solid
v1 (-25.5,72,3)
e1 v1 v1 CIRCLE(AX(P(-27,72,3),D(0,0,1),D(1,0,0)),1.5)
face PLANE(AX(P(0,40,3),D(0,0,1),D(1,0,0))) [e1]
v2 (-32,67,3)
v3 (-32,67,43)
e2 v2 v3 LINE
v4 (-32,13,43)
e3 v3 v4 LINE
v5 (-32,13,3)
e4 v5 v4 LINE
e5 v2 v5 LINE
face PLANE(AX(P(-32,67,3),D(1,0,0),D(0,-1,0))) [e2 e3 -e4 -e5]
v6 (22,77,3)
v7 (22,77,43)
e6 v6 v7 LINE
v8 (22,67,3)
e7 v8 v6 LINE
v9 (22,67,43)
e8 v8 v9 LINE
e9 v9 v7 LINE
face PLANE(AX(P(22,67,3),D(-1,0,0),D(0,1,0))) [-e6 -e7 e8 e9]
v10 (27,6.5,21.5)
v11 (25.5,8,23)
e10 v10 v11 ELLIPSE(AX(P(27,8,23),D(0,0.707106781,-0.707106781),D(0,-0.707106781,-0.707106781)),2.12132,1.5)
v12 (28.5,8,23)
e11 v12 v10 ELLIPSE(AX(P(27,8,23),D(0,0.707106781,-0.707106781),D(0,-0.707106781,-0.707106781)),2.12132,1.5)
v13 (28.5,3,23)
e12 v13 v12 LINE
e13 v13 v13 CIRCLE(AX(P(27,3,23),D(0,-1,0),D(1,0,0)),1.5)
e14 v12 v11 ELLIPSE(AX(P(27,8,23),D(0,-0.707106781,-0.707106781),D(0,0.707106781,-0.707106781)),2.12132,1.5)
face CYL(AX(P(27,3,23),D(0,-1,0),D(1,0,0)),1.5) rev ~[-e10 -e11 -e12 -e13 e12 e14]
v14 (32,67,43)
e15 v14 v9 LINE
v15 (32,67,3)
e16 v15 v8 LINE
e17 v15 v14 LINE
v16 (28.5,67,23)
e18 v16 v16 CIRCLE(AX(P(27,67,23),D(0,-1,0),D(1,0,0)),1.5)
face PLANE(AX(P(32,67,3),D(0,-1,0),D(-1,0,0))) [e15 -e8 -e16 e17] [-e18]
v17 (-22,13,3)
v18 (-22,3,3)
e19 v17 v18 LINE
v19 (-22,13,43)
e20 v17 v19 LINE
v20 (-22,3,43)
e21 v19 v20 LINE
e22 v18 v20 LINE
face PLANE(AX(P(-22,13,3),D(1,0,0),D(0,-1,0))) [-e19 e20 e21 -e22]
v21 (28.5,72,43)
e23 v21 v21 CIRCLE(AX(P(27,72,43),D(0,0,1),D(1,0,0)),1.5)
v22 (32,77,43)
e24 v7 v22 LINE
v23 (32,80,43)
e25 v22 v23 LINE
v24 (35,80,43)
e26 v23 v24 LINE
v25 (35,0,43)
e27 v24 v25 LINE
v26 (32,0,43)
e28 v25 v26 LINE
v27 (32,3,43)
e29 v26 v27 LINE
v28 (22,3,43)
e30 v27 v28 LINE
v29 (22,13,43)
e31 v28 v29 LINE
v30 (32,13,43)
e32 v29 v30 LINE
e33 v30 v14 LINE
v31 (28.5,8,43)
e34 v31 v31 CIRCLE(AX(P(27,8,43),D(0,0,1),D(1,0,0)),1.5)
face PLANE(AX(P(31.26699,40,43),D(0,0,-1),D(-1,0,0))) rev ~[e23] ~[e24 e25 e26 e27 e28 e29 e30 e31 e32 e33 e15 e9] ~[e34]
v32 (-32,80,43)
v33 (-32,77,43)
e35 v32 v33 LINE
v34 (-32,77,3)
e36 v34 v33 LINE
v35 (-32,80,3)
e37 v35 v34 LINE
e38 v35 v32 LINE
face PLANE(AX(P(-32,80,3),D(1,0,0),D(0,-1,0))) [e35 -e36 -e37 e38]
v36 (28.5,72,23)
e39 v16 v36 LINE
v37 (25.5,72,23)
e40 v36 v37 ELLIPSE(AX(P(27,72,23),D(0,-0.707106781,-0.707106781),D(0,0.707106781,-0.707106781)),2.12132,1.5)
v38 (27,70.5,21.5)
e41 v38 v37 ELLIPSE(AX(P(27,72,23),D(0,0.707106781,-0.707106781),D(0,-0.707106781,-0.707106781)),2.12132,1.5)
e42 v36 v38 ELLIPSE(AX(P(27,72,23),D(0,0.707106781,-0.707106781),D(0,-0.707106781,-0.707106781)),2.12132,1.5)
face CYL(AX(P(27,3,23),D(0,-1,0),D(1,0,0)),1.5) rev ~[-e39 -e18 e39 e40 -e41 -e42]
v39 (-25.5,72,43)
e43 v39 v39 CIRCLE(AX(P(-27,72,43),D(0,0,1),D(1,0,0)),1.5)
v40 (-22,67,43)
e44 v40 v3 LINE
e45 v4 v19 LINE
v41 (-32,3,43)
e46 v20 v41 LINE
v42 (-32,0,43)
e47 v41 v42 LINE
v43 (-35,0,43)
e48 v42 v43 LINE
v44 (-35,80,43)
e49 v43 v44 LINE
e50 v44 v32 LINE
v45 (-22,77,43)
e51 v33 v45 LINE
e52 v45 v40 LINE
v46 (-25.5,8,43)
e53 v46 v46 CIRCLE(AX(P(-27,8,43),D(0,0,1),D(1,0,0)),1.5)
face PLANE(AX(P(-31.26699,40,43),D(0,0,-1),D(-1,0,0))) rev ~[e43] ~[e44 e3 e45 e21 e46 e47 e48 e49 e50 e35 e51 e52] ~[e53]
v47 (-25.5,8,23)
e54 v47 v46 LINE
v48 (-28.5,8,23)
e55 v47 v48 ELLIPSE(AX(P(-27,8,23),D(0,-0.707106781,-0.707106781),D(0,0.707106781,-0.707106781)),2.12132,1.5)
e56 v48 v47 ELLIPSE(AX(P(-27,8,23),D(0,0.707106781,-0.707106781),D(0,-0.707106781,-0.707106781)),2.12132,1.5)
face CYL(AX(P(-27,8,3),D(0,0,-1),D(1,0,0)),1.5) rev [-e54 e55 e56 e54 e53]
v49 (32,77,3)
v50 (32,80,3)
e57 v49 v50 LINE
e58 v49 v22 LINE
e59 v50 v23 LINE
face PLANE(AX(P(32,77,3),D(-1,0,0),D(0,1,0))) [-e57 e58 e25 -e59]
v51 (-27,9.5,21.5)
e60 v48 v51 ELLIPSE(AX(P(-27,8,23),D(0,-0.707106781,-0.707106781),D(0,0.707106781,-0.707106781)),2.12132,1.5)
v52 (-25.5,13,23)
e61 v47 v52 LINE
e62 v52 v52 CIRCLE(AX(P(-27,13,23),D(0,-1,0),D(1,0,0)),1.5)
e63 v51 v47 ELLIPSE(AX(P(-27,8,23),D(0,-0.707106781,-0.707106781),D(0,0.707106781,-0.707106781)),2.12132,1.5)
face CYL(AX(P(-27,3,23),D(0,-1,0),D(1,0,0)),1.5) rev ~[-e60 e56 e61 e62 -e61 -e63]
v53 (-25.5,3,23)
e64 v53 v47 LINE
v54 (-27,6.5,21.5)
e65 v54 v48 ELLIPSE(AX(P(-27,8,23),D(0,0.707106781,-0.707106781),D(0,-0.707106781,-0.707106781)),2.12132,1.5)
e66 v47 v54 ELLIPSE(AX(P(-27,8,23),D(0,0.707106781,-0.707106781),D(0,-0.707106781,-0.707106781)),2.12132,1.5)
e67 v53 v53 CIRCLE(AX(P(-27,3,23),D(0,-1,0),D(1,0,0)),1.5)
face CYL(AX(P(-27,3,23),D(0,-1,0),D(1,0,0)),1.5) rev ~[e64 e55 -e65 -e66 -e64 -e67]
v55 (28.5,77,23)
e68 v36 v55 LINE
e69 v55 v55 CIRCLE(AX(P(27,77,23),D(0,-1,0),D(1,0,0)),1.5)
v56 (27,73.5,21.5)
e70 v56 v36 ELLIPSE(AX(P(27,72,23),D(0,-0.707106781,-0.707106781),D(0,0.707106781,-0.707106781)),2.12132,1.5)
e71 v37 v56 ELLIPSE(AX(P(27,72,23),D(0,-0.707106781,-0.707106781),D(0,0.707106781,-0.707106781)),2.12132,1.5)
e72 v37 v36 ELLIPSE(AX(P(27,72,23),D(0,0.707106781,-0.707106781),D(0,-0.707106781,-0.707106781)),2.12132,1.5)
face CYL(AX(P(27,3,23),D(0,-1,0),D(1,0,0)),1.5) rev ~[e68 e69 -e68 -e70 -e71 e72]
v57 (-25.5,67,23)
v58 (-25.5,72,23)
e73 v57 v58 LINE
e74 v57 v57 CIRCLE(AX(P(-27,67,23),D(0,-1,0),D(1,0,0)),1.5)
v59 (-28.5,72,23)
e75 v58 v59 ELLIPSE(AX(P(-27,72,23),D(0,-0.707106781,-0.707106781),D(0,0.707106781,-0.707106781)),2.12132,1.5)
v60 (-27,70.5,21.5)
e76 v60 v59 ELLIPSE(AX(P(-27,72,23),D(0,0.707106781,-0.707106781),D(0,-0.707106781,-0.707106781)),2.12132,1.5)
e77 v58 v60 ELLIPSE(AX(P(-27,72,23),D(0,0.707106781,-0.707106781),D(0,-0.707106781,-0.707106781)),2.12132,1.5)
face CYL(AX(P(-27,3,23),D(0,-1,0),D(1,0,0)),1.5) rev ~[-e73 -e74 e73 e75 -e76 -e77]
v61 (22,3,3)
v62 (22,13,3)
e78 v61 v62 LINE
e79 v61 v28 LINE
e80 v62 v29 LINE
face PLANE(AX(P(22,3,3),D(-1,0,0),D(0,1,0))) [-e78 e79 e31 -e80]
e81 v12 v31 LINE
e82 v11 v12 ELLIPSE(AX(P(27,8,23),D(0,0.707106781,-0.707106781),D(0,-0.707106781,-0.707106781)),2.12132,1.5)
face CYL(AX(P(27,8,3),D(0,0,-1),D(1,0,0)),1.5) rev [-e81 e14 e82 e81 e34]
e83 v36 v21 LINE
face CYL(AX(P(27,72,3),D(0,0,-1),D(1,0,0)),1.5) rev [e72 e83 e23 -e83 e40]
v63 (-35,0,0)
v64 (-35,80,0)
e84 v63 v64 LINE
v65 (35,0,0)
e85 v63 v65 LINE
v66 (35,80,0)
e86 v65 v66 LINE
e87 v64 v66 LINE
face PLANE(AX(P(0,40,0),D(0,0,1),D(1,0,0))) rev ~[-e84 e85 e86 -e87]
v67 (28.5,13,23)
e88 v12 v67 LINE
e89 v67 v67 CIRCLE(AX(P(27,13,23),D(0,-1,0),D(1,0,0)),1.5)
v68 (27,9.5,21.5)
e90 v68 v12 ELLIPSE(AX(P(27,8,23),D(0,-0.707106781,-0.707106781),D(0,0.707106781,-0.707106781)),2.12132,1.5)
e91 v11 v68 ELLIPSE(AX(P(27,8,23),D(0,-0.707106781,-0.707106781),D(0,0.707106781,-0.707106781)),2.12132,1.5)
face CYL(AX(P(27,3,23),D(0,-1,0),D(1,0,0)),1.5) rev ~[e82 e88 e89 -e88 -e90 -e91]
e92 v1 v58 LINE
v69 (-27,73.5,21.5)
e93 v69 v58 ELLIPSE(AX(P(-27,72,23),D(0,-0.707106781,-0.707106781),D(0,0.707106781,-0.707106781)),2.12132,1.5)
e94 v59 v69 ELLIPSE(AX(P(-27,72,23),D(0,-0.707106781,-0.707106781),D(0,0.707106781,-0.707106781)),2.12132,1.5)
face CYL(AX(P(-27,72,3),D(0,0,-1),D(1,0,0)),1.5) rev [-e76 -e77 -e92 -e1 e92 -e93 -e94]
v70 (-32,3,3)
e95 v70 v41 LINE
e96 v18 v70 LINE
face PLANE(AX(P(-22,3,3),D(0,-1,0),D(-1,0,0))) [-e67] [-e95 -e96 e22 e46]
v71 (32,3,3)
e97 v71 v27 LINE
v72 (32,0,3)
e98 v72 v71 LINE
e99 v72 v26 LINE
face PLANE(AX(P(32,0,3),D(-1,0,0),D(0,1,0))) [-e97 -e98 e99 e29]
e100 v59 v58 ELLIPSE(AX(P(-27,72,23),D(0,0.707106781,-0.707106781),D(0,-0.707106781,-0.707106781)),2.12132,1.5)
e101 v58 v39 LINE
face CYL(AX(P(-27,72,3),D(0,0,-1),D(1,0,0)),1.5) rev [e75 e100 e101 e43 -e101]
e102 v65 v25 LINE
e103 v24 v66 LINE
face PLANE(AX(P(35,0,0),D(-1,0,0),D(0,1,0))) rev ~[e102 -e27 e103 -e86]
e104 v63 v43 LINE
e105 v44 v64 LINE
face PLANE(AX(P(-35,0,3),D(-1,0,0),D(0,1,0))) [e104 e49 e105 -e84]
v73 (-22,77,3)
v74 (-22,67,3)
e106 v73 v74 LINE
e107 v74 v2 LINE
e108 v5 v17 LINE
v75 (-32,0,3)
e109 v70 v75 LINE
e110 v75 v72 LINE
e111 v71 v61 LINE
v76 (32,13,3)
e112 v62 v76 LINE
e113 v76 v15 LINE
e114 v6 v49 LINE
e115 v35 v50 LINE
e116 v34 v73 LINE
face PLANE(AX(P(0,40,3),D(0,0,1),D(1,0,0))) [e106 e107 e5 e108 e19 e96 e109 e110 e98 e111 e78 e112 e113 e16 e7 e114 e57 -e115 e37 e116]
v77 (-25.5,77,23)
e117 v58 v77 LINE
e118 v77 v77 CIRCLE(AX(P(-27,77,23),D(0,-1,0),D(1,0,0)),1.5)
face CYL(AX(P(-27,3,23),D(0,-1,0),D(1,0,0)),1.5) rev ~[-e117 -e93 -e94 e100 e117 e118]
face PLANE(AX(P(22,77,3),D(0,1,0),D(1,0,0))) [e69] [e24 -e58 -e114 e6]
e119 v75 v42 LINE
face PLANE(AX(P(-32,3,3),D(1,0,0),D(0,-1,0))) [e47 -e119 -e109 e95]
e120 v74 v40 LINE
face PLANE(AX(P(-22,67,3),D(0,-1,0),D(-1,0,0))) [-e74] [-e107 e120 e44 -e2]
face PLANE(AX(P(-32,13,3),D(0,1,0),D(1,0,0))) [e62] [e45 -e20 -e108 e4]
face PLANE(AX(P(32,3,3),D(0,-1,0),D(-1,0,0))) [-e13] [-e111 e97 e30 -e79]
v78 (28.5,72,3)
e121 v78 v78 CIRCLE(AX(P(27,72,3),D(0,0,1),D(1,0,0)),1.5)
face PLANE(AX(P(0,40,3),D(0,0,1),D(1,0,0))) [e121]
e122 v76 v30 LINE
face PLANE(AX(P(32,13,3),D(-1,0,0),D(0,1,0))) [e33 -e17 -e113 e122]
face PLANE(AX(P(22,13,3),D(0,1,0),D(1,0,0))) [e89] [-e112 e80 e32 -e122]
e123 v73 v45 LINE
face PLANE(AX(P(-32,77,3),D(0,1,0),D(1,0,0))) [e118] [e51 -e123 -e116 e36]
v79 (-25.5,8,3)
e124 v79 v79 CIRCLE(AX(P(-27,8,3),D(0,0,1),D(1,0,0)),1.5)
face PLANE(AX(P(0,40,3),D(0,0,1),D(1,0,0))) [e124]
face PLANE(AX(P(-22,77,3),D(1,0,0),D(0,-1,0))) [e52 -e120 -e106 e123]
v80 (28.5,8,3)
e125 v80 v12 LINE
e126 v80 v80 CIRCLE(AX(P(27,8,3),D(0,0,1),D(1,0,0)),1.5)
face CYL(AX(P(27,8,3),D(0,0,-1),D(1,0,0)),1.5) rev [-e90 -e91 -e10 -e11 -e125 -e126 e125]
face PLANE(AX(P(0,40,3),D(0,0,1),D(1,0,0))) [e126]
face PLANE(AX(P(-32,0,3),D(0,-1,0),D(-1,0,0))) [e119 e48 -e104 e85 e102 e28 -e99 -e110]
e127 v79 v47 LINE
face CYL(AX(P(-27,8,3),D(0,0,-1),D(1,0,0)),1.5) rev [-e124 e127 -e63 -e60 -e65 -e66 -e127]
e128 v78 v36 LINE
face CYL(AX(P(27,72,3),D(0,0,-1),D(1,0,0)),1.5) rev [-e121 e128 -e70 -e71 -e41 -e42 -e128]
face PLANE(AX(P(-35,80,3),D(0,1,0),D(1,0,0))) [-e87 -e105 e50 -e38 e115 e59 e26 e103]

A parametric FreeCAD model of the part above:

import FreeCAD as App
import Part
import Sketcher

V = App.Vector
Q = App.Units.Quantity

doc = App.newDocument("Part")
params = doc.addObject("Spreadsheet::Sheet", "Params")
for row, (alias, value) in enumerate([
    ("sketch1_width", "70 mm"),
    ("sketch1_height", "80 mm"),
    ("pad1_length", "3 mm"),
    ("sketch2_diameter", "3 mm"),
    ("sketch2_width", "3 mm"),
    ("sketch2_width2", "10 mm"),
    ("sketch2_height", "80 mm"),
    ("pad2_length", "40 mm"),
    ("sketch3_diameter", "3 mm"),
], start=1):
    params.set(f"A{row}", alias)
    params.set(f"B{row}", "=" + value)
    params.setAlias(f"B{row}", alias)

body = doc.addObject("PartDesign::Body", "Body")

# Sketch on XY plane
sketch1 = body.newObject("Sketcher::SketchObject", "Sketch")
sketch1.AttachmentSupport = (doc.getObject("XY_Plane"), [""])
sketch1.MapMode = "FlatFace"
sketch1.addGeometry(Part.LineSegment(V(-35, 80, 0), V(-35, 0, 0)), False)
sketch1.addGeometry(Part.LineSegment(V(-35, 0, 0), V(35, 0, 0)), False)
sketch1.addGeometry(Part.LineSegment(V(35, 0, 0), V(35, 80, 0)), False)
sketch1.addGeometry(Part.LineSegment(V(35, 80, 0), V(-35, 80, 0)), False)
sketch1.addConstraint(Sketcher.Constraint("Coincident", 0, 2, 1, 1))
sketch1.addConstraint(Sketcher.Constraint("Coincident", 1, 2, 2, 1))
sketch1.addConstraint(Sketcher.Constraint("Coincident", 2, 2, 3, 1))
sketch1.addConstraint(Sketcher.Constraint("Coincident", 3, 2, 0, 1))
sketch1.addConstraint(Sketcher.Constraint("Vertical", 0))
sketch1.addConstraint(Sketcher.Constraint("Horizontal", 1))
sketch1.addConstraint(Sketcher.Constraint("Vertical", 2))
sketch1.addConstraint(Sketcher.Constraint("Horizontal", 3))
sketch1.addConstraint(Sketcher.Constraint("Symmetric", 0, 2, 1, 2, -1, 1))
sketch1.addConstraint(Sketcher.Constraint("DistanceX", 1, 1, 1, 2, Q("70 mm")))
sketch1.addConstraint(Sketcher.Constraint("DistanceY", 0, 2, 0, 1, Q("80 mm")))
sketch1.setExpression("Constraints[9]", "Params.sketch1_width")
sketch1.setExpression("Constraints[10]", "Params.sketch1_height")
pad1 = body.newObject("PartDesign::Pad", "Pad")
pad1.Profile = sketch1
pad1.setExpression("Length", "Params.pad1_length")

# Sketch on XY plane
sketch2 = body.newObject("Sketcher::SketchObject", "Sketch001")
sketch2.AttachmentSupport = (doc.getObject("XY_Plane"), [""])
sketch2.MapMode = "FlatFace"
sketch2.AttachmentOffset = App.Placement(V(0, 0, 3), App.Rotation())
sketch2.addGeometry(Part.LineSegment(V(-35, 80, 0), V(-35, 0, 0)), False)
sketch2.addGeometry(Part.LineSegment(V(-35, 0, 0), V(-32, 0, 0)), False)
sketch2.addGeometry(Part.LineSegment(V(-32, 0, 0), V(-32, 3, 0)), False)
sketch2.addGeometry(Part.LineSegment(V(-32, 3, 0), V(-22, 3, 0)), False)
sketch2.addGeometry(Part.LineSegment(V(-22, 3, 0), V(-22, 13, 0)), False)
sketch2.addGeometry(Part.LineSegment(V(-22, 13, 0), V(-32, 13, 0)), False)
sketch2.addGeometry(Part.LineSegment(V(-32, 13, 0), V(-32, 67, 0)), False)
sketch2.addGeometry(Part.LineSegment(V(-32, 67, 0), V(-22, 67, 0)), False)
sketch2.addGeometry(Part.LineSegment(V(-22, 67, 0), V(-22, 77, 0)), False)
sketch2.addGeometry(Part.LineSegment(V(-22, 77, 0), V(-32, 77, 0)), False)
sketch2.addGeometry(Part.LineSegment(V(-32, 77, 0), V(-32, 80, 0)), False)
sketch2.addGeometry(Part.LineSegment(V(-32, 80, 0), V(-35, 80, 0)), False)
sketch2.addGeometry(Part.Circle(V(-27, 8, 0), V(0, 0, 1), 1.5), False)
sketch2.addGeometry(Part.Circle(V(-27, 72, 0), V(0, 0, 1), 1.5), False)
sketch2.addGeometry(Part.LineSegment(V(35, 0, 0), V(35, 80, 0)), False)
sketch2.addGeometry(Part.LineSegment(V(35, 80, 0), V(32, 80, 0)), False)
sketch2.addGeometry(Part.LineSegment(V(32, 80, 0), V(32, 77, 0)), False)
sketch2.addGeometry(Part.LineSegment(V(32, 77, 0), V(22, 77, 0)), False)
sketch2.addGeometry(Part.LineSegment(V(22, 77, 0), V(22, 67, 0)), False)
sketch2.addGeometry(Part.LineSegment(V(22, 67, 0), V(32, 67, 0)), False)
sketch2.addGeometry(Part.LineSegment(V(32, 67, 0), V(32, 13, 0)), False)
sketch2.addGeometry(Part.LineSegment(V(32, 13, 0), V(22, 13, 0)), False)
sketch2.addGeometry(Part.LineSegment(V(22, 13, 0), V(22, 3, 0)), False)
sketch2.addGeometry(Part.LineSegment(V(22, 3, 0), V(32, 3, 0)), False)
sketch2.addGeometry(Part.LineSegment(V(32, 3, 0), V(32, 0, 0)), False)
sketch2.addGeometry(Part.LineSegment(V(32, 0, 0), V(35, 0, 0)), False)
sketch2.addGeometry(Part.Circle(V(27, 8, 0), V(0, 0, 1), 1.5), False)
sketch2.addGeometry(Part.Circle(V(27, 72, 0), V(0, 0, 1), 1.5), False)
sketch2.addConstraint(Sketcher.Constraint("Coincident", 0, 2, 1, 1))
sketch2.addConstraint(Sketcher.Constraint("Coincident", 1, 2, 2, 1))
sketch2.addConstraint(Sketcher.Constraint("Coincident", 2, 2, 3, 1))
sketch2.addConstraint(Sketcher.Constraint("Coincident", 3, 2, 4, 1))
sketch2.addConstraint(Sketcher.Constraint("Coincident", 4, 2, 5, 1))
sketch2.addConstraint(Sketcher.Constraint("Coincident", 5, 2, 6, 1))
sketch2.addConstraint(Sketcher.Constraint("Coincident", 6, 2, 7, 1))
sketch2.addConstraint(Sketcher.Constraint("Coincident", 7, 2, 8, 1))
sketch2.addConstraint(Sketcher.Constraint("Coincident", 8, 2, 9, 1))
sketch2.addConstraint(Sketcher.Constraint("Coincident", 9, 2, 10, 1))
sketch2.addConstraint(Sketcher.Constraint("Coincident", 10, 2, 11, 1))
sketch2.addConstraint(Sketcher.Constraint("Coincident", 11, 2, 0, 1))
sketch2.addConstraint(Sketcher.Constraint("Coincident", 14, 2, 15, 1))
sketch2.addConstraint(Sketcher.Constraint("Coincident", 15, 2, 16, 1))
sketch2.addConstraint(Sketcher.Constraint("Coincident", 16, 2, 17, 1))
sketch2.addConstraint(Sketcher.Constraint("Coincident", 17, 2, 18, 1))
sketch2.addConstraint(Sketcher.Constraint("Coincident", 18, 2, 19, 1))
sketch2.addConstraint(Sketcher.Constraint("Coincident", 19, 2, 20, 1))
sketch2.addConstraint(Sketcher.Constraint("Coincident", 20, 2, 21, 1))
sketch2.addConstraint(Sketcher.Constraint("Coincident", 21, 2, 22, 1))
sketch2.addConstraint(Sketcher.Constraint("Coincident", 22, 2, 23, 1))
sketch2.addConstraint(Sketcher.Constraint("Coincident", 23, 2, 24, 1))
sketch2.addConstraint(Sketcher.Constraint("Coincident", 24, 2, 25, 1))
sketch2.addConstraint(Sketcher.Constraint("Coincident", 25, 2, 14, 1))
sketch2.addConstraint(Sketcher.Constraint("Vertical", 0))
sketch2.addConstraint(Sketcher.Constraint("Horizontal", 1))
sketch2.addConstraint(Sketcher.Constraint("Vertical", 2))
sketch2.addConstraint(Sketcher.Constraint("Horizontal", 3))
sketch2.addConstraint(Sketcher.Constraint("Vertical", 4))
sketch2.addConstraint(Sketcher.Constraint("Horizontal", 5))
sketch2.addConstraint(Sketcher.Constraint("Vertical", 6))
sketch2.addConstraint(Sketcher.Constraint("Horizontal", 7))
sketch2.addConstraint(Sketcher.Constraint("Vertical", 8))
sketch2.addConstraint(Sketcher.Constraint("Horizontal", 9))
sketch2.addConstraint(Sketcher.Constraint("Vertical", 10))
sketch2.addConstraint(Sketcher.Constraint("Horizontal", 11))
sketch2.addConstraint(Sketcher.Constraint("Vertical", 14))
sketch2.addConstraint(Sketcher.Constraint("Horizontal", 15))
sketch2.addConstraint(Sketcher.Constraint("Vertical", 16))
sketch2.addConstraint(Sketcher.Constraint("Horizontal", 17))
sketch2.addConstraint(Sketcher.Constraint("Vertical", 18))
sketch2.addConstraint(Sketcher.Constraint("Horizontal", 19))
sketch2.addConstraint(Sketcher.Constraint("Vertical", 20))
sketch2.addConstraint(Sketcher.Constraint("Horizontal", 21))
sketch2.addConstraint(Sketcher.Constraint("Vertical", 22))
sketch2.addConstraint(Sketcher.Constraint("Horizontal", 23))
sketch2.addConstraint(Sketcher.Constraint("Vertical", 24))
sketch2.addConstraint(Sketcher.Constraint("Horizontal", 25))
sketch2.addConstraint(Sketcher.Constraint("Equal", 12, 13))
sketch2.addConstraint(Sketcher.Constraint("Equal", 13, 26))
sketch2.addConstraint(Sketcher.Constraint("Equal", 26, 27))
sketch2.addConstraint(Sketcher.Constraint("Symmetric", 1, 2, 24, 2, -1, 1))
sketch2.addConstraint(Sketcher.Constraint("Symmetric", 12, 3, 26, 3, -2))
sketch2.addConstraint(Sketcher.Constraint("Symmetric", 13, 3, 27, 3, -2))
sketch2.addConstraint(Sketcher.Constraint("Symmetric", 11, 2, 14, 2, -2))
sketch2.addConstraint(Sketcher.Constraint("Symmetric", 9, 2, 16, 2, -2))
sketch2.addConstraint(Sketcher.Constraint("Symmetric", 7, 2, 18, 2, -2))
sketch2.addConstraint(Sketcher.Constraint("Symmetric", 5, 2, 20, 2, -2))
sketch2.addConstraint(Sketcher.Constraint("Symmetric", 3, 2, 22, 2, -2))
sketch2.addConstraint(Sketcher.Constraint("PointOnObject", 0, 2, -1))
sketch2.addConstraint(Sketcher.Constraint("Vertical", 12, 3, 13, 3))
sketch2.addConstraint(Sketcher.Constraint("Vertical", 2, 2, 5, 2))
sketch2.addConstraint(Sketcher.Constraint("Vertical", 4, 2, 7, 2))
sketch2.addConstraint(Sketcher.Constraint("Vertical", 6, 2, 9, 2))
sketch2.addConstraint(Sketcher.Constraint("Equal", 25, 2))
sketch2.addConstraint(Sketcher.Constraint("Equal", 23, 4))
sketch2.addConstraint(Sketcher.Constraint("Equal", 4, 8))
sketch2.addConstraint(Sketcher.Constraint("Equal", 2, 10))
sketch2.addConstraint(Sketcher.Constraint("Diameter", 12, Q("3 mm")))
sketch2.addConstraint(Sketcher.Constraint("DistanceX", 1, 1, 1, 2, Q("3 mm")))
sketch2.addConstraint(Sketcher.Constraint("DistanceX", 3, 1, 3, 2, Q("10 mm")))
sketch2.addConstraint(Sketcher.Constraint("DistanceY", 0, 2, 0, 1, Q("80 mm")))
sketch2.addConstraint(Sketcher.Constraint("DistanceX", 12, 3, -1, 1, Q("27 mm")))
sketch2.addConstraint(Sketcher.Constraint("DistanceY", -1, 1, 12, 3, Q("8 mm")))
sketch2.addConstraint(Sketcher.Constraint("DistanceY", -1, 1, 13, 3, Q("72 mm")))
sketch2.addConstraint(Sketcher.Constraint("DistanceX", 0, 2, -1, 1, Q("35 mm")))
sketch2.setExpression("Constraints[68]", "Params.sketch2_diameter")
sketch2.setExpression("Constraints[69]", "Params.sketch2_width")
sketch2.setExpression("Constraints[70]", "Params.sketch2_width2")
sketch2.setExpression("Constraints[71]", "Params.sketch2_height")
pad2 = body.newObject("PartDesign::Pad", "Pad001")
pad2.Profile = sketch2
pad2.setExpression("Length", "Params.pad2_length")

# Sketch on XZ plane
sketch3 = body.newObject("Sketcher::SketchObject", "Sketch002")
sketch3.AttachmentSupport = (doc.getObject("XZ_Plane"), [""])
sketch3.MapMode = "FlatFace"
sketch3.AttachmentOffset = App.Placement(V(0, 0, -3), App.Rotation())
sketch3.addGeometry(Part.Circle(V(27, 23, 0), V(0, 0, 1), 1.5), False)
sketch3.addGeometry(Part.Circle(V(-27, 23, 0), V(0, 0, 1), 1.5), False)
sketch3.addConstraint(Sketcher.Constraint("Equal", 0, 1))
sketch3.addConstraint(Sketcher.Constraint("Symmetric", 0, 3, 1, 3, -2))
sketch3.addConstraint(Sketcher.Constraint("Diameter", 0, Q("3 mm")))
sketch3.addConstraint(Sketcher.Constraint("DistanceX", -1, 1, 0, 3, Q("27 mm")))
sketch3.addConstraint(Sketcher.Constraint("DistanceY", -1, 1, 0, 3, Q("23 mm")))
sketch3.setExpression("Constraints[2]", "Params.sketch3_diameter")
pocket1 = body.newObject("PartDesign::Pocket", "Pocket")
pocket1.Profile = sketch3
pocket1.Type = "ThroughAll"

doc.recompute()
